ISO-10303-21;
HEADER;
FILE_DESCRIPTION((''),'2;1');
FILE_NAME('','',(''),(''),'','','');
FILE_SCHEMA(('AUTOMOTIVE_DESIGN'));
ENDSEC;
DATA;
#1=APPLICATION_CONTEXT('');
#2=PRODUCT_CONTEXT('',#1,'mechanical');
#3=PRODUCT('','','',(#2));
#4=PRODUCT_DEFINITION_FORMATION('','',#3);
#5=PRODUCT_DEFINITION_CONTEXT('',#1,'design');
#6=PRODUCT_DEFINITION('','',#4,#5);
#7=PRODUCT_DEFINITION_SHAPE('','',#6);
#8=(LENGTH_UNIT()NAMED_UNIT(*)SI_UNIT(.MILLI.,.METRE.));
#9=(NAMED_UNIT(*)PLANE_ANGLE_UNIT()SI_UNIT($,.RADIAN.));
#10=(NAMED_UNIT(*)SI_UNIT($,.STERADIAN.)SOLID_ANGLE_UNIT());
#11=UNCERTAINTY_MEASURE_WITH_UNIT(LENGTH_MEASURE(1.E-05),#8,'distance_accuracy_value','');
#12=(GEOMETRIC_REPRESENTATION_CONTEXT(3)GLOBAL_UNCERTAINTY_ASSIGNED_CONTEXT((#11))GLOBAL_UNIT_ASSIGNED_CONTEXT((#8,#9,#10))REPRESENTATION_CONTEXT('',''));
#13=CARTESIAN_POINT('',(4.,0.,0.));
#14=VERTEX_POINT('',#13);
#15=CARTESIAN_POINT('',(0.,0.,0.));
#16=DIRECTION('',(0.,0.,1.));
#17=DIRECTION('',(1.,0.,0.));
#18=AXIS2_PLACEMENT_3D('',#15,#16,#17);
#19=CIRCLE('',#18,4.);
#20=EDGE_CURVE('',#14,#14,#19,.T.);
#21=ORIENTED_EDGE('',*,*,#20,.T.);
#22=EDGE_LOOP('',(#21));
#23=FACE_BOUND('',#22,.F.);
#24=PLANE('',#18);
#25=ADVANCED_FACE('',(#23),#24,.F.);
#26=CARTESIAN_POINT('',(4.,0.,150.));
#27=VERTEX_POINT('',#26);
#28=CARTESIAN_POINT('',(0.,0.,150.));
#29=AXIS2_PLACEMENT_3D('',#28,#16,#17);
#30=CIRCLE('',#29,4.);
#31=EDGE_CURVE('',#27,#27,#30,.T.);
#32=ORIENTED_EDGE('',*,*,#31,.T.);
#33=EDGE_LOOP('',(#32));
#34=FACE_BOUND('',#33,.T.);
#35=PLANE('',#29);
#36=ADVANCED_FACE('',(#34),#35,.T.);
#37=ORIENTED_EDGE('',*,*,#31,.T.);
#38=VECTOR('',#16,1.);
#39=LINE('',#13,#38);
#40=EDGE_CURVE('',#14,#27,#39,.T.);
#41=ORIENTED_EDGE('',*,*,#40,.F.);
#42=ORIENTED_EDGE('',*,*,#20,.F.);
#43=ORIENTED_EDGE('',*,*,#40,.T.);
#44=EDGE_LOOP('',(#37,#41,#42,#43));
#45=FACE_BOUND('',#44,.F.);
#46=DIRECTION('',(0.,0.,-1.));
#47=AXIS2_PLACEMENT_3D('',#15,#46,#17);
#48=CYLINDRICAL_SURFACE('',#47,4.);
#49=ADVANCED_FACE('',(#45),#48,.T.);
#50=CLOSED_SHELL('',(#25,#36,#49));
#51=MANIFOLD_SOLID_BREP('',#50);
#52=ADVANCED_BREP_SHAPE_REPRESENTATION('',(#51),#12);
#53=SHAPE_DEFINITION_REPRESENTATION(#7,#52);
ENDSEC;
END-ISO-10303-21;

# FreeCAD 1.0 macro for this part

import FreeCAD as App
import Part
import Sketcher
Q = App.Units.Quantity

doc = App.newDocument("Part")
body = doc.addObject("PartDesign::Body", "Body")

sketch1 = doc.addObject("Sketcher::SketchObject", "Sketch")
body.addObject(sketch1)
sketch1.AttachmentSupport = (doc.XY_Plane, [""])
sketch1.MapMode = "FlatFace"
sketch1.addGeometry(Part.Circle(App.Vector(0, 0, 0), App.Vector(0, 0, 1), 4), False)
sketch1.addConstraint([
    Sketcher.Constraint("Coincident", 0, 3, -1, 1),
    Sketcher.Constraint("Diameter", 0, Q("8 mm")),
])
pad1 = doc.addObject("PartDesign::Pad", "Pad")
body.addObject(pad1)
pad1.Profile = sketch1
pad1.Length = 150

doc.recompute()
